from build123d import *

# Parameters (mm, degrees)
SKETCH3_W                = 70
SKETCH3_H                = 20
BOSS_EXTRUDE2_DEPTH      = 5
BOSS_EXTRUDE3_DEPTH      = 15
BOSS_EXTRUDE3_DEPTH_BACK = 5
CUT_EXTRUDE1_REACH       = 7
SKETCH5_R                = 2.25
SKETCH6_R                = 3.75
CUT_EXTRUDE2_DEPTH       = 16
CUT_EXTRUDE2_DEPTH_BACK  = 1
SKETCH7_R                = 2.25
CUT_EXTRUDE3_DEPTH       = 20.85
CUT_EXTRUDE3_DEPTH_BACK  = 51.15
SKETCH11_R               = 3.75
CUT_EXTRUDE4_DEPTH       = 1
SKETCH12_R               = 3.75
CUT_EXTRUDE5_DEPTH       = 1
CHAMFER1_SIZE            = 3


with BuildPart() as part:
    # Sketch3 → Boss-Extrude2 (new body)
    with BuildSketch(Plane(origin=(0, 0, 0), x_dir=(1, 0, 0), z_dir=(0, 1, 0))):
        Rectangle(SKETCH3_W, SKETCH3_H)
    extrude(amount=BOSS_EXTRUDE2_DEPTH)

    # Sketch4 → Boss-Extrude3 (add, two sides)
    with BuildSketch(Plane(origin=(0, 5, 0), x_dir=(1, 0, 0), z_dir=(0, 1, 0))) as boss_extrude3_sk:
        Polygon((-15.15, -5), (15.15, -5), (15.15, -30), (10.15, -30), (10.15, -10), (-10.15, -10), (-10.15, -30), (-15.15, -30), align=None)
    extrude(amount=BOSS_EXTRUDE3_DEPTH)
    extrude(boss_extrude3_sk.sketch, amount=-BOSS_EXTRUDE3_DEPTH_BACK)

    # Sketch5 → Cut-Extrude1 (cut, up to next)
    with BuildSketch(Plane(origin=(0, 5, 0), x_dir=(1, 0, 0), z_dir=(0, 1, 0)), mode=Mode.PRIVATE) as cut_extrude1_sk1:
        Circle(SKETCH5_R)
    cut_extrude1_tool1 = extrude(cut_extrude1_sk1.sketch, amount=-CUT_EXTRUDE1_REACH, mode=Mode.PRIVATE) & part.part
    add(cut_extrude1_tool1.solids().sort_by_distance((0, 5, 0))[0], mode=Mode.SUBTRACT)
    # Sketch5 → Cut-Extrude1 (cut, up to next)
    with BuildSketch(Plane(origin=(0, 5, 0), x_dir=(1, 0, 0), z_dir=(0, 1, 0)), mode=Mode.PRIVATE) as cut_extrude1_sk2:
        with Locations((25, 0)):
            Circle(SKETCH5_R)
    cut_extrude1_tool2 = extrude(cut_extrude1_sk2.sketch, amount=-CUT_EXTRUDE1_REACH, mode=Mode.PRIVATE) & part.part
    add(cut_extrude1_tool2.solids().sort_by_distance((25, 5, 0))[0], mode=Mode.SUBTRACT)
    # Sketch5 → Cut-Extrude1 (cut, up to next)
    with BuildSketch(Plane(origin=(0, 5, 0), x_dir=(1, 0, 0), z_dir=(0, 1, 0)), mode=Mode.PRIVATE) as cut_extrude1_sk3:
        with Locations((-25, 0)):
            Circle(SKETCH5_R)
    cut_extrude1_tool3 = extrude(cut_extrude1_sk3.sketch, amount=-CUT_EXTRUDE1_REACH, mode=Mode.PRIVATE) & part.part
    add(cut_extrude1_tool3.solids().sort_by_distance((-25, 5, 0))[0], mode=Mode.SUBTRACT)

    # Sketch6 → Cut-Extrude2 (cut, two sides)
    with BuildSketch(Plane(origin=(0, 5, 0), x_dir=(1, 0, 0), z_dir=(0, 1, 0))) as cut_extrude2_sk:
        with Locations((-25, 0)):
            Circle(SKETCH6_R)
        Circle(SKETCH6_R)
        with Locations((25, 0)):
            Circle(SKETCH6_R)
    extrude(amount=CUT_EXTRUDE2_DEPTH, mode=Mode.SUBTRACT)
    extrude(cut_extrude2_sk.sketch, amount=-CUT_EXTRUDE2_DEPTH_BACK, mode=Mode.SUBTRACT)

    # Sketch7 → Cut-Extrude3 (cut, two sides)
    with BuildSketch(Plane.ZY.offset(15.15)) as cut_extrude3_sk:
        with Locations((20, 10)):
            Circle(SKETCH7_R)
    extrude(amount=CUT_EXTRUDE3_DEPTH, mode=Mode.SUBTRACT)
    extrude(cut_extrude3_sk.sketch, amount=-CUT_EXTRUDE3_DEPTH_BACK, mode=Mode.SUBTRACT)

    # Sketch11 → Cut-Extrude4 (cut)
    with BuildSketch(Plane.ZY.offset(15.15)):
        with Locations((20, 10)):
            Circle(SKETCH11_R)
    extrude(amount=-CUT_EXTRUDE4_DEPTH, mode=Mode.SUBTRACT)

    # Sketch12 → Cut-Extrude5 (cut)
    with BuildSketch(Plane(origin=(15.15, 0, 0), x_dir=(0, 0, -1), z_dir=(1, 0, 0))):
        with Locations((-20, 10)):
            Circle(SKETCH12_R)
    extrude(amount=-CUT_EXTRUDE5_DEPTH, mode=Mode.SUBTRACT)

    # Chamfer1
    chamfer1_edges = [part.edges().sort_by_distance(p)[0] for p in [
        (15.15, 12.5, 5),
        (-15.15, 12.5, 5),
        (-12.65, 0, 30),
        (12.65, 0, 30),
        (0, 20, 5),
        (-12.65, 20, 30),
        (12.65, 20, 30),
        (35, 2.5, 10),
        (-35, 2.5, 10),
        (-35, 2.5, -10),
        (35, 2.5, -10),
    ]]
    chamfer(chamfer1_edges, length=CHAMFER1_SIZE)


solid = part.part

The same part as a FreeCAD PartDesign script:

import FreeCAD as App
import Part
import Sketcher

V = App.Vector
Q = App.Units.Quantity


def edges_at(feature, points):
    """Names of the edges that pass closest to the given points."""
    edges = feature.Shape.Edges
    near = lambda p: min(range(len(edges)), key=lambda i: edges[i].distToShape(Part.Vertex(*p))[0])
    return sorted({f"Edge{near(p) + 1}" for p in points})


def add_polygon(sketch, points):
    """Adds a closed chain of lines whose ends are joined by coincident constraints."""
    first, n = sketch.GeometryCount, len(points)
    for a, b in zip(points, points[1:] + points[:1]):
        sketch.addGeometry(Part.LineSegment(App.Vector(*a, 0), App.Vector(*b, 0)), False)
    for i in range(n):
        sketch.addConstraint(Sketcher.Constraint("Coincident", first + i, 2, first + (i + 1) % n, 1))

doc = App.newDocument("Part")
body = doc.addObject("PartDesign::Body", "Body")

# Sketch on XZ plane
sketch1 = body.newObject("Sketcher::SketchObject", "Sketch")
sketch1.AttachmentSupport = (doc.getObject("XZ_Plane"), [""])
sketch1.MapMode = "FlatFace"
add_polygon(sketch1, [(-35, -10), (-35, 10), (35, 10), (35, -10)])  # lines 0-3
sketch1.addConstraint(Sketcher.Constraint("Vertical", 0))
sketch1.addConstraint(Sketcher.Constraint("Horizontal", 1))
sketch1.addConstraint(Sketcher.Constraint("Vertical", 2))
sketch1.addConstraint(Sketcher.Constraint("Horizontal", 3))
sketch1.addConstraint(Sketcher.Constraint("Symmetric", 0, 2, 2, 2, -1, 1))
sketch1.addConstraint(Sketcher.Constraint("DistanceX", 1, 1, 1, 2, Q("70 mm")))
sketch1.addConstraint(Sketcher.Constraint("DistanceY", 0, 1, 0, 2, Q("20 mm")))
pad1 = body.newObject("PartDesign::Pad", "Pad")
pad1.Profile = sketch1
pad1.Length = 5
pad1.Reversed = True

# Sketch on XZ plane
sketch2 = body.newObject("Sketcher::SketchObject", "Sketch001")
sketch2.AttachmentSupport = (doc.getObject("XZ_Plane"), [""])
sketch2.MapMode = "FlatFace"
sketch2.AttachmentOffset = App.Placement(V(0, 0, -5), App.Rotation())
add_polygon(sketch2, [(15, 5), (-15, 5), (-15, 30), (-10, 30), (-10, 10), (10, 10), (10, 30), (15, 30)])  # lines 0-7
sketch2.addConstraint(Sketcher.Constraint("Horizontal", 0))
sketch2.addConstraint(Sketcher.Constraint("Vertical", 1))
sketch2.addConstraint(Sketcher.Constraint("Horizontal", 2))
sketch2.addConstraint(Sketcher.Constraint("Vertical", 3))
sketch2.addConstraint(Sketcher.Constraint("Horizontal", 4))
sketch2.addConstraint(Sketcher.Constraint("Vertical", 5))
sketch2.addConstraint(Sketcher.Constraint("Horizontal", 6))
sketch2.addConstraint(Sketcher.Constraint("Vertical", 7))
sketch2.addConstraint(Sketcher.Constraint("Symmetric", 2, 2, 5, 2, -2))
sketch2.addConstraint(Sketcher.Constraint("Equal", 2, 6))
sketch2.addConstraint(Sketcher.Constraint("DistanceX", 2, 1, 2, 2, Q("5 mm")))
sketch2.addConstraint(Sketcher.Constraint("DistanceY", 1, 1, 1, 2, Q("25 mm")))
sketch2.addConstraint(Sketcher.Constraint("DistanceY", 3, 2, 3, 1, Q("20 mm")))
sketch2.addConstraint(Sketcher.Constraint("DistanceX", 0, 2, 0, 1, Q("30.3 mm")))
sketch2.addConstraint(Sketcher.Constraint("DistanceY", -1, 1, 0, 2, Q("5 mm")))
pad2 = body.newObject("PartDesign::Pad", "Pad001")
pad2.Profile = sketch2
pad2.Type = "TwoLengths"
pad2.Length = 15
pad2.Length2 = 5
pad2.Reversed = True

# Sketch on XZ plane
sketch3 = body.newObject("Sketcher::SketchObject", "Sketch002")
sketch3.AttachmentSupport = (doc.getObject("XZ_Plane"), [""])
sketch3.MapMode = "FlatFace"
sketch3.AttachmentOffset = App.Placement(V(0, 0, -5), App.Rotation())
sketch3.addGeometry(Part.Circle(V(0, 0, 0), V(0, 0, 1), 2.2), False)
sketch3.addConstraint(Sketcher.Constraint("Coincident", 0, 3, -1, 1))
sketch3.addConstraint(Sketcher.Constraint("Diameter", 0, Q("4.5 mm")))
pocket1 = body.newObject("PartDesign::Pocket", "Pocket")
pocket1.Profile = sketch3
pocket1.Type = "UpToFirst"
pocket1.Reversed = True

# Sketch on XZ plane
sketch4 = body.newObject("Sketcher::SketchObject", "Sketch003")
sketch4.AttachmentSupport = (doc.getObject("XZ_Plane"), [""])
sketch4.MapMode = "FlatFace"
sketch4.AttachmentOffset = App.Placement(V(0, 0, -5), App.Rotation())
sketch4.addGeometry(Part.Circle(V(25, 0, 0), V(0, 0, 1), 2.2), False)
sketch4.addConstraint(Sketcher.Constraint("PointOnObject", 0, 3, -1))
sketch4.addConstraint(Sketcher.Constraint("Diameter", 0, Q("4.5 mm")))
sketch4.addConstraint(Sketcher.Constraint("DistanceX", -1, 1, 0, 3, Q("25 mm")))
pocket2 = body.newObject("PartDesign::Pocket", "Pocket001")
pocket2.Profile = sketch4
pocket2.Type = "UpToFirst"
pocket2.Reversed = True

# Sketch on XZ plane
sketch5 = body.newObject("Sketcher::SketchObject", "Sketch004")
sketch5.AttachmentSupport = (doc.getObject("XZ_Plane"), [""])
sketch5.MapMode = "FlatFace"
sketch5.AttachmentOffset = App.Placement(V(0, 0, -5), App.Rotation())
sketch5.addGeometry(Part.Circle(V(-25, 0, 0), V(0, 0, 1), 2.2), False)
sketch5.addConstraint(Sketcher.Constraint("PointOnObject", 0, 3, -1))
sketch5.addConstraint(Sketcher.Constraint("Diameter", 0, Q("4.5 mm")))
sketch5.addConstraint(Sketcher.Constraint("DistanceX", 0, 3, -1, 1, Q("25 mm")))
pocket3 = body.newObject("PartDesign::Pocket", "Pocket002")
pocket3.Profile = sketch5
pocket3.Type = "UpToFirst"
pocket3.Reversed = True

# Sketch on XZ plane
sketch6 = body.newObject("Sketcher::SketchObject", "Sketch005")
sketch6.AttachmentSupport = (doc.getObject("XZ_Plane"), [""])
sketch6.MapMode = "FlatFace"
sketch6.AttachmentOffset = App.Placement(V(0, 0, -5), App.Rotation())
sketch6.addGeometry(Part.Circle(V(-25, 0, 0), V(0, 0, 1), 3.8), False)
sketch6.addGeometry(Part.Circle(V(0, 0, 0), V(0, 0, 1), 3.8), False)
sketch6.addGeometry(Part.Circle(V(25, 0, 0), V(0, 0, 1), 3.8), False)
sketch6.addConstraint(Sketcher.Constraint("Coincident", 1, 3, -1, 1))
sketch6.addConstraint(Sketcher.Constraint("Equal", 0, 1))
sketch6.addConstraint(Sketcher.Constraint("Equal", 1, 2))
sketch6.addConstraint(Sketcher.Constraint("Symmetric", 0, 3, 2, 3, -1, 1))
sketch6.addConstraint(Sketcher.Constraint("PointOnObject", 0, 3, -1))
sketch6.addConstraint(Sketcher.Constraint("Diameter", 0, Q("7.5 mm")))
sketch6.addConstraint(Sketcher.Constraint("DistanceX", 0, 3, -1, 1, Q("25 mm")))
pocket4 = body.newObject("PartDesign::Pocket", "Pocket003")
pocket4.Profile = sketch6
pocket4.Type = "TwoLengths"
pocket4.Length = 16
pocket4.Length2 = 1

# Sketch on YZ plane
sketch7 = body.newObject("Sketcher::SketchObject", "Sketch006")
sketch7.AttachmentSupport = (doc.getObject("YZ_Plane"), [""])
sketch7.MapMode = "FlatFace"
sketch7.AttachmentOffset = App.Placement(V(0, 0, -15.15), App.Rotation())
sketch7.addGeometry(Part.Circle(V(10, 20, 0), V(0, 0, 1), 2.2), False)
sketch7.addConstraint(Sketcher.Constraint("Diameter", 0, Q("4.5 mm")))
sketch7.addConstraint(Sketcher.Constraint("DistanceX", -1, 1, 0, 3, Q("10 mm")))
sketch7.addConstraint(Sketcher.Constraint("DistanceY", -1, 1, 0, 3, Q("20 mm")))
pocket5 = body.newObject("PartDesign::Pocket", "Pocket004")
pocket5.Profile = sketch7
pocket5.Type = "ThroughAll"
pocket5.Midplane = True

# Sketch on YZ plane
sketch8 = body.newObject("Sketcher::SketchObject", "Sketch007")
sketch8.AttachmentSupport = (doc.getObject("YZ_Plane"), [""])
sketch8.MapMode = "FlatFace"
sketch8.AttachmentOffset = App.Placement(V(0, 0, -15.15), App.Rotation())
sketch8.addGeometry(Part.Circle(V(10, 20, 0), V(0, 0, 1), 3.8), False)
sketch8.addConstraint(Sketcher.Constraint("Diameter", 0, Q("7.5 mm")))
sketch8.addConstraint(Sketcher.Constraint("DistanceX", -1, 1, 0, 3, Q("10 mm")))
sketch8.addConstraint(Sketcher.Constraint("DistanceY", -1, 1, 0, 3, Q("20 mm")))
pocket6 = body.newObject("PartDesign::Pocket", "Pocket005")
pocket6.Profile = sketch8
pocket6.Length = 1
pocket6.Reversed = True

# Sketch on YZ plane
sketch9 = body.newObject("Sketcher::SketchObject", "Sketch008")
sketch9.AttachmentSupport = (doc.getObject("YZ_Plane"), [""])
sketch9.MapMode = "FlatFace"
sketch9.AttachmentOffset = App.Placement(V(0, 0, 15.15), App.Rotation())
sketch9.addGeometry(Part.Circle(V(10, 20, 0), V(0, 0, 1), 3.8), False)
sketch9.addConstraint(Sketcher.Constraint("Diameter", 0, Q("7.5 mm")))
sketch9.addConstraint(Sketcher.Constraint("DistanceX", -1, 1, 0, 3, Q("10 mm")))
sketch9.addConstraint(Sketcher.Constraint("DistanceY", -1, 1, 0, 3, Q("20 mm")))
pocket7 = body.newObject("PartDesign::Pocket", "Pocket006")
pocket7.Profile = sketch9
pocket7.Length = 1
doc.recompute()

chamfer = body.newObject("PartDesign::Chamfer", "Chamfer")
chamfer.Base = (pocket7, edges_at(pocket7, [
    (15.15, 12.5, 5),
    (-15.15, 12.5, 5),
    (-12.65, 0, 30),
    (12.65, 0, 30),
    (0, 20, 5),
    (-12.65, 20, 30),
    (12.65, 20, 30),
    (35, 2.5, 10),
    (-35, 2.5, 10),
    (-35, 2.5, -10),
    (35, 2.5, -10),
]))
chamfer.Size = 3

doc.recompute()
